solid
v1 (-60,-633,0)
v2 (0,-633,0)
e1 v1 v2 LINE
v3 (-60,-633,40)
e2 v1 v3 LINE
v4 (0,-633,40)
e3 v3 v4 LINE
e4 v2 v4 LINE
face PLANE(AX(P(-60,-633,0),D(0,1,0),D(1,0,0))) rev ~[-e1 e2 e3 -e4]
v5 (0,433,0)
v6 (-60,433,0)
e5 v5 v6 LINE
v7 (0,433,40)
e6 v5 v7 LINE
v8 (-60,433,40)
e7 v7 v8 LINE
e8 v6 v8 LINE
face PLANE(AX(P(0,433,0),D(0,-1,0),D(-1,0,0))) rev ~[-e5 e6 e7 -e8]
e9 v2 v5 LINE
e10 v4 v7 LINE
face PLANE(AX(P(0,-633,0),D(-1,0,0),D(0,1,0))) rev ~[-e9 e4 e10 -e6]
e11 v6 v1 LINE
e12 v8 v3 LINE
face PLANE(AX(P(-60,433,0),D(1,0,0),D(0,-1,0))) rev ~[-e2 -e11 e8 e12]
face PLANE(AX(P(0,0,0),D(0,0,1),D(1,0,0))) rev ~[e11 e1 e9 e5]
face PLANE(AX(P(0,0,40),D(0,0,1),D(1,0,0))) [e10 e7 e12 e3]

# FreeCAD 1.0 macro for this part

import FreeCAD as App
import Part
import Sketcher
from FreeCAD import Vector


def add_polygon(sketch, points):
    """Adds a closed chain of lines whose ends are joined by coincident constraints."""
    first, n = sketch.GeometryCount, len(points)
    for a, b in zip(points, points[1:] + points[:1]):
        sketch.addGeometry(Part.LineSegment(App.Vector(*a, 0), App.Vector(*b, 0)), False)
    for i in range(n):
        sketch.addConstraint(Sketcher.Constraint("Coincident", first + i, 2, first + (i + 1) % n, 1))

doc = App.newDocument("Part")
body = doc.addObject("PartDesign::Body", "Body")

# Sketch on XY plane
sketch1 = body.newObject("Sketcher::SketchObject", "Sketch")
sketch1.AttachmentSupport = (doc.getObject("XY_Plane"), [""])
sketch1.MapMode = "FlatFace"
add_polygon(sketch1, [(-60, -633), (0, -633), (0, 433), (-60, 433)])  # lines 0-3
sketch1.addConstraint([
    Sketcher.Constraint("Horizontal", 0),
    Sketcher.Constraint("Vertical", 1),
    Sketcher.Constraint("Horizontal", 2),
    Sketcher.Constraint("Vertical", 3),
    Sketcher.Constraint("PointOnObject", 0, 2, -2),
    Sketcher.Constraint("DistanceX", 0, 1, 0, 2, 60.0),
    Sketcher.Constraint("DistanceY", 1, 1, 1, 2, 1066.0),
    Sketcher.Constraint("DistanceY", 0, 2, -1, 1, 633.0),
])
pad1 = body.newObject("PartDesign::Pad", "Pad")
pad1.Profile = sketch1
pad1.Length = 40

doc.recompute()
